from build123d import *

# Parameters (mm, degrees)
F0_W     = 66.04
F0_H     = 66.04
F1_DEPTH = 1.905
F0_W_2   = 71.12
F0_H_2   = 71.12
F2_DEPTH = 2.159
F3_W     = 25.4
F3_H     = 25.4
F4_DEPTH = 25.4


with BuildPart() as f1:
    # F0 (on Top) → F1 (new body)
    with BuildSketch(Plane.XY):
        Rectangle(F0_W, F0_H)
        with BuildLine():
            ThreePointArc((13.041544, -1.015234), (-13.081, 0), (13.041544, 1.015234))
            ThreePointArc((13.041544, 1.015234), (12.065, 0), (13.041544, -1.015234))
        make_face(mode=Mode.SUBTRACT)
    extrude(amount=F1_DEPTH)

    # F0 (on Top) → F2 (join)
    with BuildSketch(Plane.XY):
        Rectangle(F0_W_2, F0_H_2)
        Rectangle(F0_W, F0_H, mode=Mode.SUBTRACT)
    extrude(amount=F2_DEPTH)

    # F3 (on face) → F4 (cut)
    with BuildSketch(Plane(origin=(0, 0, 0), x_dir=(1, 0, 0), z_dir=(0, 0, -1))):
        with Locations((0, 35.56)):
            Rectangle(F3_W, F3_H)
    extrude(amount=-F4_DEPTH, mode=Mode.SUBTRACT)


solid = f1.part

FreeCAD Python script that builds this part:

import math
import FreeCAD as App
import Part
import Sketcher

V = App.Vector
Q = App.Units.Quantity


def add_polygon(sketch, points):
    """Adds a closed chain of lines whose ends are joined by coincident constraints."""
    first, n = sketch.GeometryCount, len(points)
    for a, b in zip(points, points[1:] + points[:1]):
        sketch.addGeometry(Part.LineSegment(App.Vector(*a, 0), App.Vector(*b, 0)), False)
    for i in range(n):
        sketch.addConstraint(Sketcher.Constraint("Coincident", first + i, 2, first + (i + 1) % n, 1))

doc = App.newDocument("Part")
body = doc.addObject("PartDesign::Body", "Body")

# Sketch on XY plane
sketch1 = body.newObject("Sketcher::SketchObject", "Sketch")
sketch1.AttachmentSupport = (doc.getObject("XY_Plane"), [""])
sketch1.MapMode = "FlatFace"
add_polygon(sketch1, [(-33.02, 33.02), (-33.02, -33.02), (33.02, -33.02), (33.02, 33.02)])  # lines 0-3
sketch1.addGeometry(Part.ArcOfCircle(Part.Circle(V(13.081, 0, 0), V(0, 0, 1), 1.016), math.radians(92.225645), math.radians(267.774355)), False)  # 4
sketch1.addGeometry(Part.ArcOfCircle(Part.Circle(V(0, 0, 0), V(0, 0, 1), 13.081), math.radians(4.451279), math.radians(355.548721)), False)  # 5
sketch1.addConstraint([
    Sketcher.Constraint("Coincident", 4, 1, 5, 1),
    Sketcher.Constraint("Coincident", 5, 2, 4, 2),
    Sketcher.Constraint("Vertical", 0),
    Sketcher.Constraint("Horizontal", 1),
    Sketcher.Constraint("Vertical", 2),
    Sketcher.Constraint("Horizontal", 3),
    Sketcher.Constraint("Coincident", 5, 3, -1, 1),
    Sketcher.Constraint("Symmetric", 0, 2, 2, 2, -1, 1),
    Sketcher.Constraint("PointOnObject", 4, 3, -1),
    Sketcher.Constraint("Equal", 3, 0),
    Sketcher.Constraint("Radius", 4, Q("0.04 in")),
    Sketcher.Constraint("DistanceX", 1, 1, 1, 2, Q("2.6 in")),
    Sketcher.Constraint("Radius", 5, Q("0.515 in")),
    Sketcher.Constraint("DistanceX", -1, 1, 4, 3, Q("0.515 in")),
])
pad1 = body.newObject("PartDesign::Pad", "Pad")
pad1.Profile = sketch1
pad1.Length = Q("0.075 in")

# Sketch on XY plane
sketch2 = body.newObject("Sketcher::SketchObject", "Sketch001")
sketch2.AttachmentSupport = (doc.getObject("XY_Plane"), [""])
sketch2.MapMode = "FlatFace"
add_polygon(sketch2, [(-35.56, 35.56), (-35.56, -35.56), (35.56, -35.56), (35.56, 35.56)])  # lines 0-3
add_polygon(sketch2, [(33.02, -33.02), (-33.02, -33.02), (-33.02, 33.02), (33.02, 33.02)])  # lines 4-7
sketch2.addConstraint([
    Sketcher.Constraint("Vertical", 0),
    Sketcher.Constraint("Horizontal", 1),
    Sketcher.Constraint("Vertical", 2),
    Sketcher.Constraint("Horizontal", 3),
    Sketcher.Constraint("Horizontal", 4),
    Sketcher.Constraint("Vertical", 5),
    Sketcher.Constraint("Horizontal", 6),
    Sketcher.Constraint("Vertical", 7),
    Sketcher.Constraint("Symmetric", 0, 2, 2, 2, -1, 1),
    Sketcher.Constraint("Symmetric", 4, 2, 6, 2, -1, 1),
    Sketcher.Constraint("Equal", 3, 0),
    Sketcher.Constraint("Equal", 6, 5),
    Sketcher.Constraint("DistanceX", 1, 1, 1, 2, Q("2.8 in")),
    Sketcher.Constraint("DistanceX", 4, 2, 4, 1, Q("2.6 in")),
])
pad2 = body.newObject("PartDesign::Pad", "Pad001")
pad2.Profile = sketch2
pad2.Length = Q("0.085 in")

# Sketch on XY plane
sketch3 = body.newObject("Sketcher::SketchObject", "Sketch002")
sketch3.AttachmentSupport = (doc.getObject("XY_Plane"), [""])
sketch3.MapMode = "FlatFace"
add_polygon(sketch3, [(-12.7, -48.26), (-12.7, -22.86), (12.7, -22.86), (12.7, -48.26)])  # lines 0-3
sketch3.addConstraint([
    Sketcher.Constraint("Vertical", 0),
    Sketcher.Constraint("Horizontal", 1),
    Sketcher.Constraint("Vertical", 2),
    Sketcher.Constraint("Horizontal", 3),
    Sketcher.Constraint("Equal", 3, 0),
    Sketcher.Constraint("DistanceX", 1, 1, 1, 2, Q("1 in")),
    Sketcher.Constraint("DistanceX", 0, 2, -1, 1, Q("0.5 in")),
    Sketcher.Constraint("DistanceY", 0, 2, -1, 1, Q("0.9 in")),
])
pocket1 = body.newObject("PartDesign::Pocket", "Pocket")
pocket1.Profile = sketch3
pocket1.Length = Q("1 in")
pocket1.Reversed = True

doc.recompute()
